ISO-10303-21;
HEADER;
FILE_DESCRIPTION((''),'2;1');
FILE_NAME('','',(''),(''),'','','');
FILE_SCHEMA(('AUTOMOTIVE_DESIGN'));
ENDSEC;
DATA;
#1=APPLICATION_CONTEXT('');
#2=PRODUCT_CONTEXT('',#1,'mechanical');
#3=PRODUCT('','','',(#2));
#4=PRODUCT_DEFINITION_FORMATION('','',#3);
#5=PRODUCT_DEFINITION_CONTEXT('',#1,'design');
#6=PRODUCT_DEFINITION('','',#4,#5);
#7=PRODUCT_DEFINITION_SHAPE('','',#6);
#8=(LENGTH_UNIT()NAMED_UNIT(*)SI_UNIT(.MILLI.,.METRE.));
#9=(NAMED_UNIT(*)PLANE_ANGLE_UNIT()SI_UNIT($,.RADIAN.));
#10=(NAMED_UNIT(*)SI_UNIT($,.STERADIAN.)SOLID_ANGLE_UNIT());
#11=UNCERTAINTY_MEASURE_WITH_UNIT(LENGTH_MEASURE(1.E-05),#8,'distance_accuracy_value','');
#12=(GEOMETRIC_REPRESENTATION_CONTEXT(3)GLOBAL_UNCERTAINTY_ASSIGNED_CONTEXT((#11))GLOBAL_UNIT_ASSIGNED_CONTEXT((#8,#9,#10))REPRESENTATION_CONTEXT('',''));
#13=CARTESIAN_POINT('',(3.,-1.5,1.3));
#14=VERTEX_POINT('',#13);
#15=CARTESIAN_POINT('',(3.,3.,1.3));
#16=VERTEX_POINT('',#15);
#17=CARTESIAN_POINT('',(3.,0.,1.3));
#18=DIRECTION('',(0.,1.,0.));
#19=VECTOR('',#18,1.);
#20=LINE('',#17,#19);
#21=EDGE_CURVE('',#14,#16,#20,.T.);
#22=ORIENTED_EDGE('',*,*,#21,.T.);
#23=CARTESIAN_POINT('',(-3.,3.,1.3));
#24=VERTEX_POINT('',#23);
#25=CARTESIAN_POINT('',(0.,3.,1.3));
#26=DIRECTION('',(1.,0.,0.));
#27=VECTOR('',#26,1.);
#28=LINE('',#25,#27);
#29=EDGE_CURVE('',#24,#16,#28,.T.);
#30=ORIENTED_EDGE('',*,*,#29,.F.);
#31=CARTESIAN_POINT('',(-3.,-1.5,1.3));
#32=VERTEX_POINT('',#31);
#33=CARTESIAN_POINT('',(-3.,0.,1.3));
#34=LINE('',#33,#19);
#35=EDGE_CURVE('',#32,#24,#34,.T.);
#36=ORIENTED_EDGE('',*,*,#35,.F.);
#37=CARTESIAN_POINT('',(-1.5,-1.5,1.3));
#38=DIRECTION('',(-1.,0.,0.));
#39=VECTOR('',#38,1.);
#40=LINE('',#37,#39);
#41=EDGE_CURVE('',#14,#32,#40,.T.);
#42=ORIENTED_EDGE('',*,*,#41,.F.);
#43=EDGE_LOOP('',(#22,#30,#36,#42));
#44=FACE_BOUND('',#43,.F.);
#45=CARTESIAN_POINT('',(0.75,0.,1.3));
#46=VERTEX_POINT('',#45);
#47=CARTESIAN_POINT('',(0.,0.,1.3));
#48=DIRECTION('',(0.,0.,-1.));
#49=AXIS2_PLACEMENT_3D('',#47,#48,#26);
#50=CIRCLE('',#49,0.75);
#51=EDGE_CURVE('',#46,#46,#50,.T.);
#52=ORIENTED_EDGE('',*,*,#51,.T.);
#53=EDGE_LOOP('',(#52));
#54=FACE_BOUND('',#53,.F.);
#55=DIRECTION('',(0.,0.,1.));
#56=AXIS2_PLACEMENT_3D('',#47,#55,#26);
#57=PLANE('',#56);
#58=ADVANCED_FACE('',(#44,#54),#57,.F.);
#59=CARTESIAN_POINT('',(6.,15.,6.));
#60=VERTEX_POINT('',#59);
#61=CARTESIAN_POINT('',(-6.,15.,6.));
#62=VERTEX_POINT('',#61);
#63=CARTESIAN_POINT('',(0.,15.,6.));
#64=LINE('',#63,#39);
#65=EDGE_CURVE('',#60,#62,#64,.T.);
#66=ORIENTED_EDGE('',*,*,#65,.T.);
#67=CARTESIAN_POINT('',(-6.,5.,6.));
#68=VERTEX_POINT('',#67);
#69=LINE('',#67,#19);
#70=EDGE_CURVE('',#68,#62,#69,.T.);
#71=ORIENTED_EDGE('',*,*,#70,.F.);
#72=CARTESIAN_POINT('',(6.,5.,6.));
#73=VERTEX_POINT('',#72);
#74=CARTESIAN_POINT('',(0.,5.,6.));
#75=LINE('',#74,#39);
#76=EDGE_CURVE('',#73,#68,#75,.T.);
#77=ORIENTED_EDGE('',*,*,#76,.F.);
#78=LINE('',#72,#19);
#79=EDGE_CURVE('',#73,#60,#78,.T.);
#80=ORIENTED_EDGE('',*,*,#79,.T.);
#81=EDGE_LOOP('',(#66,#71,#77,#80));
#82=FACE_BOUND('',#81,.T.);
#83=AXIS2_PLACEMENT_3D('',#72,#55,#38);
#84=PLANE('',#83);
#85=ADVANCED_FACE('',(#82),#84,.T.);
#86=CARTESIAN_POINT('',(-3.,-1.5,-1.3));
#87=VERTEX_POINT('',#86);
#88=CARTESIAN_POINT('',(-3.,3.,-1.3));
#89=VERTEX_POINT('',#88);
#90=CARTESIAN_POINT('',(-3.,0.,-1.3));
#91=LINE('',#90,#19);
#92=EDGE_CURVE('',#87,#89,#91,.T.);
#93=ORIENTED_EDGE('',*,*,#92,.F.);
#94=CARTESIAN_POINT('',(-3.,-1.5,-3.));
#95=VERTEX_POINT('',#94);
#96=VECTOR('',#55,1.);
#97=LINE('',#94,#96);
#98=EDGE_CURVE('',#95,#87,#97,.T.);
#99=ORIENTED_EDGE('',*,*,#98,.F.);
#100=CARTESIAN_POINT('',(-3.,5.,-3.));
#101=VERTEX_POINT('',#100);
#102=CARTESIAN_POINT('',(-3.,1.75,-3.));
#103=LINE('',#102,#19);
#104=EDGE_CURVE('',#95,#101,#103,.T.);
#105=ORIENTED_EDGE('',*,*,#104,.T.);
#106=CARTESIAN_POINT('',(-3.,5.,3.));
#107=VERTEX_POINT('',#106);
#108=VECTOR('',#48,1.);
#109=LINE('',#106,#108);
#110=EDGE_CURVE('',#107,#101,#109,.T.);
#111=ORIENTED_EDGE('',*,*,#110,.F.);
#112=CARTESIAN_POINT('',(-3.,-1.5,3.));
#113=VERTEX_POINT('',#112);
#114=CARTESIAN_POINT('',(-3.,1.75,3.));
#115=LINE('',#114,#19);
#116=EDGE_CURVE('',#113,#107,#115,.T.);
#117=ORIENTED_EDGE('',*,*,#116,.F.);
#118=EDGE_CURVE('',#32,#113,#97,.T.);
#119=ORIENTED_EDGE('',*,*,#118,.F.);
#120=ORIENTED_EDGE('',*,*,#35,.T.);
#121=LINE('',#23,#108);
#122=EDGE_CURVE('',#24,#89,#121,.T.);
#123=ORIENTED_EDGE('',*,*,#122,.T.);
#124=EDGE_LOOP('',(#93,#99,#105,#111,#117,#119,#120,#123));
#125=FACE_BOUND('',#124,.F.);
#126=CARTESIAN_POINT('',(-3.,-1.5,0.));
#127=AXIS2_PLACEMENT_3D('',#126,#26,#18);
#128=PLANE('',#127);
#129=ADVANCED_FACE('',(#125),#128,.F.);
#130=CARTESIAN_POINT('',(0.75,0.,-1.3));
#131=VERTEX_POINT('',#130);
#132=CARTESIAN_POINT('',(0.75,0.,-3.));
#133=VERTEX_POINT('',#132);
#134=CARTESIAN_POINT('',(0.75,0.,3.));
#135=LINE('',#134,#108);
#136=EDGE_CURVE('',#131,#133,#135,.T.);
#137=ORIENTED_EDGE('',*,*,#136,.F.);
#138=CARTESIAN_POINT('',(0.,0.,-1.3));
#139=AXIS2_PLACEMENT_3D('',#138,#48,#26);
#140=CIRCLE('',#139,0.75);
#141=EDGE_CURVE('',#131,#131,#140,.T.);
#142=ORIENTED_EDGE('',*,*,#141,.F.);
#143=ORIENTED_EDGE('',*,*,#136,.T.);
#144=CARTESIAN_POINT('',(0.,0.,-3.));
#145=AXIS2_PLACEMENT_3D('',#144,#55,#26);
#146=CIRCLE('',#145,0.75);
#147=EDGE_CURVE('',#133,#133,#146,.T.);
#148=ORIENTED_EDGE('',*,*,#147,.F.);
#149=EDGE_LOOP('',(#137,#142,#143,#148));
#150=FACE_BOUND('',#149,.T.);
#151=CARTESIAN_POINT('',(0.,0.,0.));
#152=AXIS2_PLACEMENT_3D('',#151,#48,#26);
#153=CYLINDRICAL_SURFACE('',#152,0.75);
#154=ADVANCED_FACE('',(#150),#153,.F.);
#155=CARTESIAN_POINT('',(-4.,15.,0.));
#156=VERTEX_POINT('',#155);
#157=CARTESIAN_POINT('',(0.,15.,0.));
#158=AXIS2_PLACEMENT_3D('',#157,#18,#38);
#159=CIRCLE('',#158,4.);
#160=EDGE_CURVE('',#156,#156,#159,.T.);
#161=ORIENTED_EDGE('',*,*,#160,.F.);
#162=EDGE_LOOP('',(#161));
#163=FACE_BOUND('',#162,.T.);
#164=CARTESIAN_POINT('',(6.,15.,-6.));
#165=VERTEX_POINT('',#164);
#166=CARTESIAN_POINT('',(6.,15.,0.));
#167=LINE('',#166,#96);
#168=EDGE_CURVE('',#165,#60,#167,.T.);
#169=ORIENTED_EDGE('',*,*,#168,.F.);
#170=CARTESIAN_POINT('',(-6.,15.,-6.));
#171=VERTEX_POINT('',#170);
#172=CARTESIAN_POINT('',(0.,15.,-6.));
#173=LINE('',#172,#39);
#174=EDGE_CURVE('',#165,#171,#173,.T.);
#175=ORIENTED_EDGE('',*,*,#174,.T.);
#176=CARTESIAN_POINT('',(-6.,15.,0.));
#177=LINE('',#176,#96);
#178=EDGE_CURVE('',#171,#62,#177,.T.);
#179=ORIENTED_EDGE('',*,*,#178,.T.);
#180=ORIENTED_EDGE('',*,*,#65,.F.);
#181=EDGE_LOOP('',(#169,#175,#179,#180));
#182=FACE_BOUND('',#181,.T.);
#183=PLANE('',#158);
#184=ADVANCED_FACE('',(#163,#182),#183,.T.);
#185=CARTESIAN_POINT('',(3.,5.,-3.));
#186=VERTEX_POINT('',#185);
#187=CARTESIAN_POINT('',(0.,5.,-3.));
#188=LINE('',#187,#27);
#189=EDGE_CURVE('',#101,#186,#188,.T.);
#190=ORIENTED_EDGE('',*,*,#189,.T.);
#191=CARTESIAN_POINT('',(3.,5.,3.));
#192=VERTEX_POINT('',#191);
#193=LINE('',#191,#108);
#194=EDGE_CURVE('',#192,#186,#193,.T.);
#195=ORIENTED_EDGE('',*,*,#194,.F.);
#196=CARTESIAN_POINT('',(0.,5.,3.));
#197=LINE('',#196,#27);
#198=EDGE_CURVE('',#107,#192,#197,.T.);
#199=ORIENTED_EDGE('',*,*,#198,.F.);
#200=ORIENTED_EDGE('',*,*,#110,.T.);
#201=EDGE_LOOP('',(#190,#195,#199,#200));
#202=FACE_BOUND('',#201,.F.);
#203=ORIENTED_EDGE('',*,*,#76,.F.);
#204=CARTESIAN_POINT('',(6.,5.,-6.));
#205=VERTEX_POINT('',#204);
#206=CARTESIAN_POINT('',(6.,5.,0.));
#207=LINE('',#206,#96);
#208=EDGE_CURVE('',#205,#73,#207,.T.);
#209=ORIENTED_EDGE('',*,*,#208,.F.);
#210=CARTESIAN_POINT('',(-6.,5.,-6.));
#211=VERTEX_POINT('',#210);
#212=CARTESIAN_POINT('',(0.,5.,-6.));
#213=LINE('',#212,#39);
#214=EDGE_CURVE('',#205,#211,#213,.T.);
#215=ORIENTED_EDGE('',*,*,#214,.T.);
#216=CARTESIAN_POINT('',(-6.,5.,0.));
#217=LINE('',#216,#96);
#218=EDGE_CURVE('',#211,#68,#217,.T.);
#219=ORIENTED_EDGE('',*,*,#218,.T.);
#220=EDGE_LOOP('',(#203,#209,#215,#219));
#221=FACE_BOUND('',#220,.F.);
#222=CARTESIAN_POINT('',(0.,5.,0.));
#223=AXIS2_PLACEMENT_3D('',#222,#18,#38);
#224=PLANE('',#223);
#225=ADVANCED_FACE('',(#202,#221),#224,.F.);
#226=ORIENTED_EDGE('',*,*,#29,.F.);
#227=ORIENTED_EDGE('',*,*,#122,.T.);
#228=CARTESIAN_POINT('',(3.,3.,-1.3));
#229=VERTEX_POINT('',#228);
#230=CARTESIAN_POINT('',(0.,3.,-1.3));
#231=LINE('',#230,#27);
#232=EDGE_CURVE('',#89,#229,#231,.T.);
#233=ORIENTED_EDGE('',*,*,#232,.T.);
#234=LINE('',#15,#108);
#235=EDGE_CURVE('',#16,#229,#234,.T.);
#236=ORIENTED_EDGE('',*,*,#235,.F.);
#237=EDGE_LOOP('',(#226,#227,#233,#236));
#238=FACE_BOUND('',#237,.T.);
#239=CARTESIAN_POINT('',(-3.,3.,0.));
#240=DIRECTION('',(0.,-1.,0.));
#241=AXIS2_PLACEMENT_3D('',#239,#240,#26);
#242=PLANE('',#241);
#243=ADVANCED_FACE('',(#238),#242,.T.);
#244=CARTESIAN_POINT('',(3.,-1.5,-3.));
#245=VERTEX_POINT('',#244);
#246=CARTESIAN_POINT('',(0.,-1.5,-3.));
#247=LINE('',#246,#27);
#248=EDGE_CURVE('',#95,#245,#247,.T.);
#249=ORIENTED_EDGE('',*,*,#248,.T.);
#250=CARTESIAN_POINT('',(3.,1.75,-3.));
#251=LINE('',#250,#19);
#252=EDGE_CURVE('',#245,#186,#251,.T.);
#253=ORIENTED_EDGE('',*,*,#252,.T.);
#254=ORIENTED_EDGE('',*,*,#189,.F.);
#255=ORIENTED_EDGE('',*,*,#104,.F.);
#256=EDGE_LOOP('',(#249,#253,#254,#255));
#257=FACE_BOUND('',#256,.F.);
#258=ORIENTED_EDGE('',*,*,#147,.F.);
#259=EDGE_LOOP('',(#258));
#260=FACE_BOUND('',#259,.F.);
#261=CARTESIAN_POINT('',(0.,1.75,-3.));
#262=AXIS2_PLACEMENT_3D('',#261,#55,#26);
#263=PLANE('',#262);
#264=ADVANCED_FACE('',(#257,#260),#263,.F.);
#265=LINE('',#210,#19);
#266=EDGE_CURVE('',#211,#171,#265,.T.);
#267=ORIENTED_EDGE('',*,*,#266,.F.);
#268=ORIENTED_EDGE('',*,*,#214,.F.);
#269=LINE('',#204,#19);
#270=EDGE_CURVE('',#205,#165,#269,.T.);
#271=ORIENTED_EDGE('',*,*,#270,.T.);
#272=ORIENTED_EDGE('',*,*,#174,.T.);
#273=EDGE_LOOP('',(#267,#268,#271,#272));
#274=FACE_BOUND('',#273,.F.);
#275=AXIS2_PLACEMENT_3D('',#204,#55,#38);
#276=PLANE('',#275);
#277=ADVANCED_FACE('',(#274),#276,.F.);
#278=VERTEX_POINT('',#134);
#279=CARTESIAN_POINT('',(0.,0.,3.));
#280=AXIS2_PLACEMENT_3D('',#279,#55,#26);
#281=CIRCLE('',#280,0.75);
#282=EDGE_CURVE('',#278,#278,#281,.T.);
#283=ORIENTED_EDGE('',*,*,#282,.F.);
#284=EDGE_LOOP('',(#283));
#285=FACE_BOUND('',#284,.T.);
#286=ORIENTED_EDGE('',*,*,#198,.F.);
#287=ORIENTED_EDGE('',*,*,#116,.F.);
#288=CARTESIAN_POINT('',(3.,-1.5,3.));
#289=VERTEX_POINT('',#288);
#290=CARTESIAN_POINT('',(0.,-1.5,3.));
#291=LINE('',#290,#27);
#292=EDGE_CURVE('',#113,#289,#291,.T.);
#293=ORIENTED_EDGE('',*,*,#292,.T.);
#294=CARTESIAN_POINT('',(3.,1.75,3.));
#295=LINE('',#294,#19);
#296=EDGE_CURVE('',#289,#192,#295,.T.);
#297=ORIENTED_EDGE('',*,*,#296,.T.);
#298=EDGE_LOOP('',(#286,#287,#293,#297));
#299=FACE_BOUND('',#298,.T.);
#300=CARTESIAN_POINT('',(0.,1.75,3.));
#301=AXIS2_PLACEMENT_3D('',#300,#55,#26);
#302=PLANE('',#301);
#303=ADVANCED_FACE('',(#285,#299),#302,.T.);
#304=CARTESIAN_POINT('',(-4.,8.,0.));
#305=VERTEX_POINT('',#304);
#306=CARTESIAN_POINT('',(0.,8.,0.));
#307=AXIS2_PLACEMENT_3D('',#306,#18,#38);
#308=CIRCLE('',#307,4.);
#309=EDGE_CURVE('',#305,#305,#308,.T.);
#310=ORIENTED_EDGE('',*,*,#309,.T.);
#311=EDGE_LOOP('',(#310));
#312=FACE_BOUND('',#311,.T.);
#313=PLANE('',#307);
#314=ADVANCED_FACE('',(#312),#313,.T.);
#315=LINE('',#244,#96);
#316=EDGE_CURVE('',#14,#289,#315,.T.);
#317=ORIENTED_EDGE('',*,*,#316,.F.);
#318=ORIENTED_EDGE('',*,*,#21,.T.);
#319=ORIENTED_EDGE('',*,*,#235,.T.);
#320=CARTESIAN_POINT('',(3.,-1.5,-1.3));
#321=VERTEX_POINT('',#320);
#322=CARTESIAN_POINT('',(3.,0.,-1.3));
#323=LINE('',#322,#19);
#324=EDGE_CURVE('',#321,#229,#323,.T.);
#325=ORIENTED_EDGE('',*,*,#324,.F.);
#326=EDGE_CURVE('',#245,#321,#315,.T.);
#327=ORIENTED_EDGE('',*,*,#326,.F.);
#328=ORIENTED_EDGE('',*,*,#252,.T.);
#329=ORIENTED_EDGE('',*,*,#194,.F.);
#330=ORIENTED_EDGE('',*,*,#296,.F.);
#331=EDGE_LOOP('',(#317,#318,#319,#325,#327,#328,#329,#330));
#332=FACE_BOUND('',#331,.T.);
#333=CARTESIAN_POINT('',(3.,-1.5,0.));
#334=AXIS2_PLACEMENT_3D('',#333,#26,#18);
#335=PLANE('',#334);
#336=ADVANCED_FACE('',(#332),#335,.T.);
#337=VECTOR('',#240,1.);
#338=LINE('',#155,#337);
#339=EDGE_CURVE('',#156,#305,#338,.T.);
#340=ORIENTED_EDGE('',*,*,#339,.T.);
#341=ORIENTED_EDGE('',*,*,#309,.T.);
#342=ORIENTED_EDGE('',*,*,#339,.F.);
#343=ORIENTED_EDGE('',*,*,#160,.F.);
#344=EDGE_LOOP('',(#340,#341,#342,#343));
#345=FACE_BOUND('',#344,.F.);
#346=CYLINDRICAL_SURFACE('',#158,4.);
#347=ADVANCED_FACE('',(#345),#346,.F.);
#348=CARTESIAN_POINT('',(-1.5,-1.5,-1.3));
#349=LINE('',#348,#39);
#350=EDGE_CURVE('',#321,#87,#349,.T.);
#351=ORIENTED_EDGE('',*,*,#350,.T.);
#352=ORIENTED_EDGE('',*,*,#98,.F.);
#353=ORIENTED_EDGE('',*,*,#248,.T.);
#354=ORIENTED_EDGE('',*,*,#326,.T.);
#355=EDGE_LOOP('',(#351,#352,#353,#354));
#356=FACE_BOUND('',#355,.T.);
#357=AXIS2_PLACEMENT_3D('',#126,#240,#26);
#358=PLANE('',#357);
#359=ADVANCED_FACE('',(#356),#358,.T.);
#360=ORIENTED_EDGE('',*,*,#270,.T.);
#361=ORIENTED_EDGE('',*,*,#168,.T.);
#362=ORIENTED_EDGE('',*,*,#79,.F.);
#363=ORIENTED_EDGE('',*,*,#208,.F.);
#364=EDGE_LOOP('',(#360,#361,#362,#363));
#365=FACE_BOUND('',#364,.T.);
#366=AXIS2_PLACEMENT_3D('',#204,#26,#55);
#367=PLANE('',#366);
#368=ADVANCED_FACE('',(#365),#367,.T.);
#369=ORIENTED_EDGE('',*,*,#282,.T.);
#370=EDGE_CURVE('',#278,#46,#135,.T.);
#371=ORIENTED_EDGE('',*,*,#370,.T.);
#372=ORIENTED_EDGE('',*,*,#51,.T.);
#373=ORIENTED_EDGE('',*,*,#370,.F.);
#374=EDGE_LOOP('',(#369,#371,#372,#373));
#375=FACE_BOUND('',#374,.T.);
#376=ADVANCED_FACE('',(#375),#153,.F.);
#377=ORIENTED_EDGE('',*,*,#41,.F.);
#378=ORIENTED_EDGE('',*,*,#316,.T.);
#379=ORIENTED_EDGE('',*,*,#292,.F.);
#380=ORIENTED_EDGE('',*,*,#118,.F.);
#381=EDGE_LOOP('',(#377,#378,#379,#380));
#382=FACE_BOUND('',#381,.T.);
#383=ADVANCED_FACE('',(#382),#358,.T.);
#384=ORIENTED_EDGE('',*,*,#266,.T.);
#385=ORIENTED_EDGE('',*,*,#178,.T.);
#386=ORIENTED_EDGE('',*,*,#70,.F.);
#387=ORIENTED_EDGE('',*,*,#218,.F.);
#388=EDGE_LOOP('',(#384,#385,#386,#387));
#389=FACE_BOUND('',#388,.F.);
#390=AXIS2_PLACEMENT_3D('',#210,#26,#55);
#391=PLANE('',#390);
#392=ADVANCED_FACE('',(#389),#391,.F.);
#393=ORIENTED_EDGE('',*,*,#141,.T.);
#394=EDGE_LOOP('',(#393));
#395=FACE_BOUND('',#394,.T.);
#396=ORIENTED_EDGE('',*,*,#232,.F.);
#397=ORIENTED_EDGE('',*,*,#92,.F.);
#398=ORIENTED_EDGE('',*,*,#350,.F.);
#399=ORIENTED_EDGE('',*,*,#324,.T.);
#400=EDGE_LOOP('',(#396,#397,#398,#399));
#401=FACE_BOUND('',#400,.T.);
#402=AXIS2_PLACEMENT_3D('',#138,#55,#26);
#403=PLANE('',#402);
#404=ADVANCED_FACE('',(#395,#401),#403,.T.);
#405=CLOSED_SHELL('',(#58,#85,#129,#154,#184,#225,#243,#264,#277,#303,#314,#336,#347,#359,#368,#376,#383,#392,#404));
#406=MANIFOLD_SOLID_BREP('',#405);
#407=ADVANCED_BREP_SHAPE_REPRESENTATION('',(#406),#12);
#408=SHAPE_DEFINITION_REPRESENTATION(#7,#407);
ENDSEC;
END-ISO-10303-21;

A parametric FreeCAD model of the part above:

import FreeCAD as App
import Part
import Sketcher
Q = App.Units.Quantity

doc = App.newDocument("Part")
params = doc.addObject("Spreadsheet::Sheet", "Params")
for row, (alias, value) in enumerate([
    ("sketch1_diameter", "1.5 mm"),
    ("sketch1_width", "6 mm"),
    ("sketch1_height", "6.5 mm"),
    ("pad1_length", "6 mm"),
    ("sketch2_width", "6 mm"),
    ("pocket1_length", "2.6 mm"),
    ("sketch3_width", "12 mm"),
    ("pad2_length", "10 mm"),
    ("sketch4_diameter", "8 mm"),
    ("pocket2_length", "7 mm"),
], start=1):
    params.set(f"A{row}", alias)
    params.set(f"B{row}", "=" + value)
    params.setAlias(f"B{row}", alias)

body = doc.addObject("PartDesign::Body", "Body")

# Sketch on XY plane
sketch1 = body.newObject("Sketcher::SketchObject", "Sketch")
sketch1.AttachmentSupport = (doc.getObject("XY_Plane"), [""])
sketch1.MapMode = "FlatFace"
sketch1.addGeometry([
    Part.LineSegment(App.Vector(-3, 5, 0), App.Vector(-3, -1.5, 0)),  # 0
    Part.LineSegment(App.Vector(-3, -1.5, 0), App.Vector(3, -1.5, 0)),  # 1
    Part.LineSegment(App.Vector(3, -1.5, 0), App.Vector(3, 5, 0)),  # 2
    Part.LineSegment(App.Vector(3, 5, 0), App.Vector(-3, 5, 0)),  # 3
    Part.Circle(App.Vector(0, 0, 0), App.Vector(0, 0, 1), 0.8),  # 4
], False)
sketch1.addConstraint([
    Sketcher.Constraint("Coincident", 0, 2, 1, 1),
    Sketcher.Constraint("Coincident", 1, 2, 2, 1),
    Sketcher.Constraint("Coincident", 2, 2, 3, 1),
    Sketcher.Constraint("Coincident", 3, 2, 0, 1),
    Sketcher.Constraint("Vertical", 0),
    Sketcher.Constraint("Horizontal", 1),
    Sketcher.Constraint("Vertical", 2),
    Sketcher.Constraint("Horizontal", 3),
    Sketcher.Constraint("Coincident", 4, 3, -1, 1),
    Sketcher.Constraint("Diameter", 4, Q("1.5 mm")),
    Sketcher.Constraint("DistanceX", 1, 1, 1, 2, Q("6 mm")),
    Sketcher.Constraint("DistanceY", 0, 2, 0, 1, Q("6.5 mm")),
    Sketcher.Constraint("DistanceX", 0, 2, -1, 1, Q("3 mm")),
    Sketcher.Constraint("DistanceY", -1, 1, 2, 2, Q("5 mm")),
])
sketch1.setExpression("Constraints[9]", "Params.sketch1_diameter")
sketch1.setExpression("Constraints[10]", "Params.sketch1_width")
sketch1.setExpression("Constraints[11]", "Params.sketch1_height")
pad1 = body.newObject("PartDesign::Pad", "Pad")
pad1.Profile = sketch1
pad1.setExpression("Length", "Params.pad1_length")
pad1.Midplane = True

# Sketch on XY plane
sketch2 = body.newObject("Sketcher::SketchObject", "Sketch001")
sketch2.AttachmentSupport = (doc.getObject("XY_Plane"), [""])
sketch2.MapMode = "FlatFace"
sketch2.addGeometry([
    Part.LineSegment(App.Vector(-3, 3, 0), App.Vector(-3, -3, 0)),
    Part.LineSegment(App.Vector(-3, -3, 0), App.Vector(3, -3, 0)),
    Part.LineSegment(App.Vector(3, -3, 0), App.Vector(3, 3, 0)),
    Part.LineSegment(App.Vector(3, 3, 0), App.Vector(-3, 3, 0)),
], False)
sketch2.addConstraint([
    Sketcher.Constraint("Coincident", 0, 2, 1, 1),
    Sketcher.Constraint("Coincident", 1, 2, 2, 1),
    Sketcher.Constraint("Coincident", 2, 2, 3, 1),
    Sketcher.Constraint("Coincident", 3, 2, 0, 1),
    Sketcher.Constraint("Vertical", 0),
    Sketcher.Constraint("Horizontal", 1),
    Sketcher.Constraint("Vertical", 2),
    Sketcher.Constraint("Horizontal", 3),
    Sketcher.Constraint("Symmetric", 0, 2, 2, 2, -1, 1),
    Sketcher.Constraint("Equal", 3, 0),
    Sketcher.Constraint("DistanceX", 1, 1, 1, 2, Q("6 mm")),
])
sketch2.setExpression("Constraints[10]", "Params.sketch2_width")
pocket1 = body.newObject("PartDesign::Pocket", "Pocket")
pocket1.Profile = sketch2
pocket1.setExpression("Length", "Params.pocket1_length")
pocket1.Midplane = True

# Sketch on XZ plane
sketch3 = body.newObject("Sketcher::SketchObject", "Sketch002")
sketch3.AttachmentSupport = (doc.getObject("XZ_Plane"), [""])
sketch3.MapMode = "FlatFace"
sketch3.AttachmentOffset = App.Placement(App.Vector(0, 0, -5), App.Rotation())
sketch3.addGeometry([
    Part.LineSegment(App.Vector(6, 6, 0), App.Vector(6, -6, 0)),
    Part.LineSegment(App.Vector(6, -6, 0), App.Vector(-6, -6, 0)),
    Part.LineSegment(App.Vector(-6, -6, 0), App.Vector(-6, 6, 0)),
    Part.LineSegment(App.Vector(-6, 6, 0), App.Vector(6, 6, 0)),
], False)
sketch3.addConstraint([
    Sketcher.Constraint("Coincident", 0, 2, 1, 1),
    Sketcher.Constraint("Coincident", 1, 2, 2, 1),
    Sketcher.Constraint("Coincident", 2, 2, 3, 1),
    Sketcher.Constraint("Coincident", 3, 2, 0, 1),
    Sketcher.Constraint("Vertical", 0),
    Sketcher.Constraint("Horizontal", 1),
    Sketcher.Constraint("Vertical", 2),
    Sketcher.Constraint("Horizontal", 3),
    Sketcher.Constraint("Symmetric", 0, 2, 2, 2, -1, 1),
    Sketcher.Constraint("Equal", 3, 0),
    Sketcher.Constraint("DistanceX", 1, 2, 1, 1, Q("12 mm")),
])
sketch3.setExpression("Constraints[10]", "Params.sketch3_width")
pad2 = body.newObject("PartDesign::Pad", "Pad001")
pad2.Profile = sketch3
pad2.setExpression("Length", "Params.pad2_length")
pad2.Reversed = True

# Sketch on XZ plane
sketch4 = body.newObject("Sketcher::SketchObject", "Sketch003")
sketch4.AttachmentSupport = (doc.getObject("XZ_Plane"), [""])
sketch4.MapMode = "FlatFace"
sketch4.AttachmentOffset = App.Placement(App.Vector(0, 0, -15), App.Rotation())
sketch4.addGeometry(Part.Circle(App.Vector(0, 0, 0), App.Vector(0, 0, 1), 4), False)
sketch4.addConstraint([
    Sketcher.Constraint("Coincident", 0, 3, -1, 1),
    Sketcher.Constraint("Diameter", 0, Q("8 mm")),
])
sketch4.setExpression("Constraints[1]", "Params.sketch4_diameter")
pocket2 = body.newObject("PartDesign::Pocket", "Pocket001")
pocket2.Profile = sketch4
pocket2.setExpression("Length", "Params.pocket2_length")
pocket2.Reversed = True

doc.recompute()
